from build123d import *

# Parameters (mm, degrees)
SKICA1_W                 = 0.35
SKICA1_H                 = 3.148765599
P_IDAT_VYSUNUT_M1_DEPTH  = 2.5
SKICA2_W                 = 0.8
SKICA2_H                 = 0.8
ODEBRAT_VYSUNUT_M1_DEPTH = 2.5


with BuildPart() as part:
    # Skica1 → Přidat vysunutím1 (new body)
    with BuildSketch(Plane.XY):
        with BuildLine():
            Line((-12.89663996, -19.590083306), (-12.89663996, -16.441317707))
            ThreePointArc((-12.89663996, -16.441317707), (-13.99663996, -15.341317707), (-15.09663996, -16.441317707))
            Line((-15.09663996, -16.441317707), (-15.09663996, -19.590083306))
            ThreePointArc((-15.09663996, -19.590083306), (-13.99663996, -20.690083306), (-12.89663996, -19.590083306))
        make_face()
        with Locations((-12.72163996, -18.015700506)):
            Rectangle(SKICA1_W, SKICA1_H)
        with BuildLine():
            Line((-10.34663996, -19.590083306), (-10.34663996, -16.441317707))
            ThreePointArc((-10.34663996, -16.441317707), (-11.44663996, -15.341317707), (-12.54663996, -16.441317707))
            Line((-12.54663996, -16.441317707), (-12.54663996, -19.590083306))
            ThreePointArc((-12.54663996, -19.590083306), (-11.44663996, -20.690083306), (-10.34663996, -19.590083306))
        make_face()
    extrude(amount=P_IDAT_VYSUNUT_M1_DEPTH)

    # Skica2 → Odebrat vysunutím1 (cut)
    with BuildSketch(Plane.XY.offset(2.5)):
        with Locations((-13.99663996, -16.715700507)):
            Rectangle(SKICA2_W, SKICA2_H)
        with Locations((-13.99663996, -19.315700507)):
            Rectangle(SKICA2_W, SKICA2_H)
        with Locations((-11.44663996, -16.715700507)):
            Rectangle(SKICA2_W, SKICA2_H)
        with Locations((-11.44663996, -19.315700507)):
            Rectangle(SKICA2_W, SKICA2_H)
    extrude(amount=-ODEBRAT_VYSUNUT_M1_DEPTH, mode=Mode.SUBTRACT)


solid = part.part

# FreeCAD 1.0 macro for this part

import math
import FreeCAD as App
import Part
import Sketcher

V = App.Vector
Q = App.Units.Quantity

doc = App.newDocument("Part")
params = doc.addObject("Spreadsheet::Sheet", "Params")
for row, (alias, value) in enumerate([
    ("sketch1_radius", "1.1 mm"),
    ("sketch1_width", "0.35 mm"),
    ("pad1_length", "2.5 mm"),
    ("sketch2_width", "0.8 mm"),
    ("pocket1_length", "2.5 mm"),
], start=1):
    params.set(f"A{row}", alias)
    params.set(f"B{row}", "=" + value)
    params.setAlias(f"B{row}", alias)

body = doc.addObject("PartDesign::Body", "Body")

sketch1 = doc.addObject("Sketcher::SketchObject", "Sketch")
body.addObject(sketch1)
sketch1.AttachmentSupport = (doc.XY_Plane, [""])
sketch1.MapMode = "FlatFace"
sketch1.addGeometry([
    Part.ArcOfCircle(Part.Circle(V(-13.99664, -16.441318, 0), V(0, 0, 1), 1.1), math.radians(0), math.radians(180)),
    Part.LineSegment(V(-15.09664, -16.441318, 0), V(-15.09664, -19.590083, 0)),
    Part.ArcOfCircle(Part.Circle(V(-13.99664, -19.590083, 0), V(0, 0, 1), 1.1), math.radians(180), math.radians(360)),
    Part.LineSegment(V(-12.89664, -19.590083, 0), V(-12.54664, -19.590083, 0)),
    Part.ArcOfCircle(Part.Circle(V(-11.44664, -19.590083, 0), V(0, 0, 1), 1.1), math.radians(180), math.radians(360)),
    Part.LineSegment(V(-10.34664, -19.590083, 0), V(-10.34664, -16.441318, 0)),
    Part.ArcOfCircle(Part.Circle(V(-11.44664, -16.441318, 0), V(0, 0, 1), 1.1), math.radians(0), math.radians(180)),
    Part.LineSegment(V(-12.54664, -16.441318, 0), V(-12.89664, -16.441318, 0)),
], False)
sketch1.addConstraint([
    Sketcher.Constraint("Tangent", 0, 2, 1, 1),
    Sketcher.Constraint("Tangent", 1, 2, 2, 1),
    Sketcher.Constraint("Coincident", 2, 2, 3, 1),
    Sketcher.Constraint("Coincident", 3, 2, 4, 1),
    Sketcher.Constraint("Tangent", 4, 2, 5, 1),
    Sketcher.Constraint("Tangent", 5, 2, 6, 1),
    Sketcher.Constraint("Coincident", 6, 2, 7, 1),
    Sketcher.Constraint("Coincident", 7, 2, 0, 1),
    Sketcher.Constraint("Vertical", 1),
    Sketcher.Constraint("Horizontal", 3),
    Sketcher.Constraint("Vertical", 5),
    Sketcher.Constraint("Horizontal", 7),
    Sketcher.Constraint("Equal", 0, 2),
    Sketcher.Constraint("Equal", 2, 4),
    Sketcher.Constraint("Equal", 4, 6),
    Sketcher.Constraint("Horizontal", 2, 3, 4, 3),
    Sketcher.Constraint("Horizontal", 0, 3, 6, 3),
    Sketcher.Constraint("Horizontal", 1, 2, 2, 2),
    Sketcher.Constraint("Horizontal", 5, 2, 6, 2),
    Sketcher.Constraint("Radius", 0, Q("1.1 mm")),
    Sketcher.Constraint("DistanceX", 3, 1, 3, 2, Q("0.35 mm")),
    Sketcher.Constraint("DistanceY", 1, 2, 1, 1, Q("3.148766 mm")),
    Sketcher.Constraint("DistanceX", 0, 3, -1, 1, Q("13.99664 mm")),
    Sketcher.Constraint("DistanceY", 0, 3, -1, 1, Q("16.441318 mm")),
])
sketch1.setExpression("Constraints[19]", "Params.sketch1_radius")
sketch1.setExpression("Constraints[20]", "Params.sketch1_width")
pad1 = doc.addObject("PartDesign::Pad", "Pad")
body.addObject(pad1)
pad1.Profile = sketch1
pad1.setExpression("Length", "Params.pad1_length")

sketch2 = doc.addObject("Sketcher::SketchObject", "Sketch001")
body.addObject(sketch2)
sketch2.AttachmentSupport = (doc.XY_Plane, [""])
sketch2.MapMode = "FlatFace"
sketch2.AttachmentOffset = App.Placement(V(0, 0, 2.5), App.Rotation())
sketch2.addGeometry([
    Part.LineSegment(V(-14.39664, -16.315701, 0), V(-14.39664, -17.115701, 0)),
    Part.LineSegment(V(-14.39664, -17.115701, 0), V(-13.59664, -17.115701, 0)),
    Part.LineSegment(V(-13.59664, -17.115701, 0), V(-13.59664, -16.315701, 0)),
    Part.LineSegment(V(-13.59664, -16.315701, 0), V(-14.39664, -16.315701, 0)),
    Part.LineSegment(V(-14.39664, -18.915701, 0), V(-14.39664, -19.715701, 0)),
    Part.LineSegment(V(-14.39664, -19.715701, 0), V(-13.59664, -19.715701, 0)),
    Part.LineSegment(V(-13.59664, -19.715701, 0), V(-13.59664, -18.915701, 0)),
    Part.LineSegment(V(-13.59664, -18.915701, 0), V(-14.39664, -18.915701, 0)),
    Part.LineSegment(V(-11.84664, -16.315701, 0), V(-11.84664, -17.115701, 0)),
    Part.LineSegment(V(-11.84664, -17.115701, 0), V(-11.04664, -17.115701, 0)),
    Part.LineSegment(V(-11.04664, -17.115701, 0), V(-11.04664, -16.315701, 0)),
    Part.LineSegment(V(-11.04664, -16.315701, 0), V(-11.84664, -16.315701, 0)),
    Part.LineSegment(V(-11.84664, -18.915701, 0), V(-11.84664, -19.715701, 0)),
    Part.LineSegment(V(-11.84664, -19.715701, 0), V(-11.04664, -19.715701, 0)),
    Part.LineSegment(V(-11.04664, -19.715701, 0), V(-11.04664, -18.915701, 0)),
    Part.LineSegment(V(-11.04664, -18.915701, 0), V(-11.84664, -18.915701, 0)),
], False)
sketch2.addConstraint([
    Sketcher.Constraint("Coincident", 0, 2, 1, 1),
    Sketcher.Constraint("Coincident", 1, 2, 2, 1),
    Sketcher.Constraint("Coincident", 2, 2, 3, 1),
    Sketcher.Constraint("Coincident", 3, 2, 0, 1),
    Sketcher.Constraint("Coincident", 4, 2, 5, 1),
    Sketcher.Constraint("Coincident", 5, 2, 6, 1),
    Sketcher.Constraint("Coincident", 6, 2, 7, 1),
    Sketcher.Constraint("Coincident", 7, 2, 4, 1),
    Sketcher.Constraint("Coincident", 8, 2, 9, 1),
    Sketcher.Constraint("Coincident", 9, 2, 10, 1),
    Sketcher.Constraint("Coincident", 10, 2, 11, 1),
    Sketcher.Constraint("Coincident", 11, 2, 8, 1),
    Sketcher.Constraint("Coincident", 12, 2, 13, 1),
    Sketcher.Constraint("Coincident", 13, 2, 14, 1),
    Sketcher.Constraint("Coincident", 14, 2, 15, 1),
    Sketcher.Constraint("Coincident", 15, 2, 12, 1),
    Sketcher.Constraint("Vertical", 0),
    Sketcher.Constraint("Horizontal", 1),
    Sketcher.Constraint("Vertical", 2),
    Sketcher.Constraint("Horizontal", 3),
    Sketcher.Constraint("Vertical", 4),
    Sketcher.Constraint("Horizontal", 5),
    Sketcher.Constraint("Vertical", 6),
    Sketcher.Constraint("Horizontal", 7),
    Sketcher.Constraint("Vertical", 8),
    Sketcher.Constraint("Horizontal", 9),
    Sketcher.Constraint("Vertical", 10),
    Sketcher.Constraint("Horizontal", 11),
    Sketcher.Constraint("Vertical", 12),
    Sketcher.Constraint("Horizontal", 13),
    Sketcher.Constraint("Vertical", 14),
    Sketcher.Constraint("Horizontal", 15),
    Sketcher.Constraint("Horizontal", 1, 2, 8, 2),
    Sketcher.Constraint("Horizontal", 3, 2, 10, 2),
    Sketcher.Constraint("Horizontal", 5, 2, 12, 2),
    Sketcher.Constraint("Horizontal", 7, 2, 14, 2),
    Sketcher.Constraint("Vertical", 3, 2, 4, 2),
    Sketcher.Constraint("Vertical", 2, 2, 5, 2),
    Sketcher.Constraint("Vertical", 11, 2, 12, 2),
    Sketcher.Constraint("Vertical", 10, 2, 13, 2),
    Sketcher.Constraint("Equal", 7, 9),
    Sketcher.Constraint("Equal", 15, 0),
    Sketcher.Constraint("Equal", 2, 4),
    Sketcher.Constraint("DistanceX", 1, 1, 1, 2, Q("0.8 mm")),
    Sketcher.Constraint("DistanceY", 4, 2, 0, 2, Q("2.6 mm")),
    Sketcher.Constraint("DistanceX", 1, 2, 8, 2, Q("1.75 mm")),
    Sketcher.Constraint("DistanceY", 0, 2, -1, 1, Q("17.115701 mm")),
    Sketcher.Constraint("DistanceX", 0, 2, -1, 1, Q("14.39664 mm")),
])
sketch2.setExpression("Constraints[43]", "Params.sketch2_width")
pocket1 = doc.addObject("PartDesign::Pocket", "Pocket")
body.addObject(pocket1)
pocket1.Profile = sketch2
pocket1.setExpression("Length", "Params.pocket1_length")

doc.recompute()
